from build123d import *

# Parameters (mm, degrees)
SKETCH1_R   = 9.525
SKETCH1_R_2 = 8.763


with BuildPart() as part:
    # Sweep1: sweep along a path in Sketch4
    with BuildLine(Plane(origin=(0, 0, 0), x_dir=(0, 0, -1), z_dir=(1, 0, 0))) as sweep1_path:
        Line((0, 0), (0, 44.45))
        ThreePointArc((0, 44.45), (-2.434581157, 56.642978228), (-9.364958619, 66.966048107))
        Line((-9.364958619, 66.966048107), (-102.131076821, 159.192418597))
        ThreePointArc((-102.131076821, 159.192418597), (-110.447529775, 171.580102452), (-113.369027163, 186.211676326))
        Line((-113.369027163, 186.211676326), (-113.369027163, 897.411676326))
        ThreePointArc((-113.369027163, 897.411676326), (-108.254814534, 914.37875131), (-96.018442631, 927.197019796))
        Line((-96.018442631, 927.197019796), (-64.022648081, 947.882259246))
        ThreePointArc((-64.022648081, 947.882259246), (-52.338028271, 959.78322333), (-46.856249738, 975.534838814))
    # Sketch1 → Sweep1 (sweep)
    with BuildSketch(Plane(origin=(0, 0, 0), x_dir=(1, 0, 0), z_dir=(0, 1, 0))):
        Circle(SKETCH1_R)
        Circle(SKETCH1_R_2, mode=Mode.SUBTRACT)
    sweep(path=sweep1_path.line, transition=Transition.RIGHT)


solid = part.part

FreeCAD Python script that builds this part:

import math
import FreeCAD as App
import Part
import Sketcher

V = App.Vector
Q = App.Units.Quantity

doc = App.newDocument("Part")
body = doc.addObject("PartDesign::Body", "Body")

sketch1 = body.newObject("Sketcher::SketchObject", "Sketch")
sketch1.AttachmentSupport = (doc.getObject("XZ_Plane"), [""])
sketch1.MapMode = "FlatFace"
sketch1.addGeometry([
    Part.Circle(V(0, 0, 0), V(0, 0, 1), 10),
    Part.Circle(V(0, 0, 0), V(0, 0, 1), 9),
], False)
sketch1.addConstraint([
    Sketcher.Constraint("Coincident", 0, 3, -1, 1),
    Sketcher.Constraint("Coincident", 1, 3, -1, 1),
    Sketcher.Constraint("Diameter", 0, Q("0.75 in")),
    Sketcher.Constraint("Diameter", 1, Q("0.69 in")),
])

sketch2 = body.newObject("Sketcher::SketchObject", "Sketch001")
sketch2.AttachmentSupport = (doc.getObject("YZ_Plane"), [""])
sketch2.MapMode = "FlatFace"
sketch2.addGeometry([
    Part.LineSegment(V(0, 0, 0), V(44, 0, 0)),
    Part.ArcOfCircle(Part.Circle(V(44, 32, 0), V(0, 0, 1), 32), math.radians(-90), math.radians(-45)),
    Part.LineSegment(V(67, 9, 0), V(159, 102, 0)),
    Part.ArcOfCircle(Part.Circle(V(186, 75, 0), V(0, 0, 1), 38), math.radians(90), math.radians(135)),
    Part.LineSegment(V(186, 113, 0), V(897, 113, 0)),
    Part.ArcOfCircle(Part.Circle(V(895, 75, 0), V(0, 0, 1), 38), math.radians(33), math.radians(87)),
    Part.LineSegment(V(927, 96, 0), V(948, 64, 0)),
    Part.ArcOfCircle(Part.Circle(V(980, 85, 0), V(0, 0, 1), 38), math.radians(-147), math.radians(-97)),
], False)
sketch2.addConstraint([
    Sketcher.Constraint("Tangent", 0, 2, 1, 1),
    Sketcher.Constraint("Tangent", 1, 2, 2, 1),
    Sketcher.Constraint("Tangent", 2, 2, 3, 2),
    Sketcher.Constraint("Tangent", 3, 1, 4, 1),
    Sketcher.Constraint("Coincident", 4, 2, 5, 2),
    Sketcher.Constraint("Tangent", 5, 1, 6, 1),
    Sketcher.Constraint("Tangent", 6, 2, 7, 1),
    Sketcher.Constraint("Horizontal", 0),
    Sketcher.Constraint("Horizontal", 4),
    Sketcher.Constraint("Coincident", 0, 1, -1, 1),
    Sketcher.Constraint("Equal", 3, 5),
    Sketcher.Constraint("Equal", 5, 7),
    Sketcher.Constraint("Radius", 3, Q("1.5 in")),
    Sketcher.Constraint("DistanceX", 4, 1, 4, 2, Q("28 in")),
    Sketcher.Constraint("Radius", 1, Q("1.25 in")),
    Sketcher.Constraint("Distance", 6, Q("1.5 in")),
    Sketcher.Constraint("DistanceX", 0, 1, 0, 2, Q("1.75 in")),
    Sketcher.Constraint("Distance", 2, Q("5.15 in")),
    Sketcher.Constraint("DistanceY", 7, 2, 6, 2, 17.166398),
    Sketcher.Constraint("DistanceX", -1, 1, 1, 2, 66.966048),
    Sketcher.Constraint("DistanceX", -1, 1, 5, 1, 927.19702),
    Sketcher.Constraint("DistanceX", -1, 1, 6, 2, 947.882259),
])
doc.recompute()

additivepipe = body.newObject("PartDesign::AdditivePipe", "AdditivePipe")
additivepipe.Profile = sketch1
additivepipe.Spine = (sketch2, ["Edge1", "Edge2", "Edge3", "Edge4", "Edge5", "Edge6", "Edge7", "Edge8"])
additivepipe.Transition = "Right corner"

doc.recompute()
